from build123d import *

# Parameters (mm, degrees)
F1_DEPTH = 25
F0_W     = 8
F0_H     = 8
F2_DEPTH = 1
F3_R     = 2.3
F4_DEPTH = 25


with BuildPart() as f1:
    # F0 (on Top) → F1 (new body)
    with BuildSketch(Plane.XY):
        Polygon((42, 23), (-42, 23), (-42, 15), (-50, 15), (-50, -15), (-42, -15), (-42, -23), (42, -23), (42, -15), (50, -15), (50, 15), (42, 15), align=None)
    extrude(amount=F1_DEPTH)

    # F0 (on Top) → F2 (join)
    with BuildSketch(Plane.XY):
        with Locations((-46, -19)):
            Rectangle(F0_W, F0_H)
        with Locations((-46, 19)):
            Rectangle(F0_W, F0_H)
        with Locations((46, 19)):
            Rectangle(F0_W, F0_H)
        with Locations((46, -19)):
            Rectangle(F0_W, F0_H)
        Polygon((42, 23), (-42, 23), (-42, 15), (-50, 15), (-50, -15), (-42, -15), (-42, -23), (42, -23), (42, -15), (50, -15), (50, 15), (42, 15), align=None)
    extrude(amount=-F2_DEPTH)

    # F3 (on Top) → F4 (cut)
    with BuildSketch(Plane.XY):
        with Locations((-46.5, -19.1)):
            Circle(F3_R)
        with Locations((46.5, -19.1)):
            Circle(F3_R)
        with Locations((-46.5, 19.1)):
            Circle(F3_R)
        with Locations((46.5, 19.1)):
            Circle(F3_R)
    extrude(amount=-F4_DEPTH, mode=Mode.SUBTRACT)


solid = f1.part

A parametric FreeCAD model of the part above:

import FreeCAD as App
import Part
import Sketcher
from FreeCAD import Vector

doc = App.newDocument("Part")
body = doc.addObject("PartDesign::Body", "Body")

# Sketch on XY plane
sketch1 = doc.addObject("Sketcher::SketchObject", "Sketch")
body.addObject(sketch1)
sketch1.AttachmentSupport = (doc.XY_Plane, [""])
sketch1.MapMode = "FlatFace"
sketch1.addGeometry(Part.LineSegment(Vector(42, 23, 0), Vector(-42, 23, 0)), False)
sketch1.addGeometry(Part.LineSegment(Vector(-42, 23, 0), Vector(-42, 15, 0)), False)
sketch1.addGeometry(Part.LineSegment(Vector(-42, 15, 0), Vector(-50, 15, 0)), False)
sketch1.addGeometry(Part.LineSegment(Vector(-50, 15, 0), Vector(-50, -15, 0)), False)
sketch1.addGeometry(Part.LineSegment(Vector(-50, -15, 0), Vector(-42, -15, 0)), False)
sketch1.addGeometry(Part.LineSegment(Vector(-42, -15, 0), Vector(-42, -23, 0)), False)
sketch1.addGeometry(Part.LineSegment(Vector(-42, -23, 0), Vector(42, -23, 0)), False)
sketch1.addGeometry(Part.LineSegment(Vector(42, -23, 0), Vector(42, -15, 0)), False)
sketch1.addGeometry(Part.LineSegment(Vector(42, -15, 0), Vector(50, -15, 0)), False)
sketch1.addGeometry(Part.LineSegment(Vector(50, -15, 0), Vector(50, 15, 0)), False)
sketch1.addGeometry(Part.LineSegment(Vector(50, 15, 0), Vector(42, 15, 0)), False)
sketch1.addGeometry(Part.LineSegment(Vector(42, 15, 0), Vector(42, 23, 0)), False)
sketch1.addConstraint(Sketcher.Constraint("Coincident", 0, 2, 1, 1))
sketch1.addConstraint(Sketcher.Constraint("Coincident", 1, 2, 2, 1))
sketch1.addConstraint(Sketcher.Constraint("Coincident", 2, 2, 3, 1))
sketch1.addConstraint(Sketcher.Constraint("Coincident", 3, 2, 4, 1))
sketch1.addConstraint(Sketcher.Constraint("Coincident", 4, 2, 5, 1))
sketch1.addConstraint(Sketcher.Constraint("Coincident", 5, 2, 6, 1))
sketch1.addConstraint(Sketcher.Constraint("Coincident", 6, 2, 7, 1))
sketch1.addConstraint(Sketcher.Constraint("Coincident", 7, 2, 8, 1))
sketch1.addConstraint(Sketcher.Constraint("Coincident", 8, 2, 9, 1))
sketch1.addConstraint(Sketcher.Constraint("Coincident", 9, 2, 10, 1))
sketch1.addConstraint(Sketcher.Constraint("Coincident", 10, 2, 11, 1))
sketch1.addConstraint(Sketcher.Constraint("Coincident", 11, 2, 0, 1))
sketch1.addConstraint(Sketcher.Constraint("Horizontal", 0))
sketch1.addConstraint(Sketcher.Constraint("Vertical", 1))
sketch1.addConstraint(Sketcher.Constraint("Horizontal", 2))
sketch1.addConstraint(Sketcher.Constraint("Vertical", 3))
sketch1.addConstraint(Sketcher.Constraint("Horizontal", 4))
sketch1.addConstraint(Sketcher.Constraint("Vertical", 5))
sketch1.addConstraint(Sketcher.Constraint("Horizontal", 6))
sketch1.addConstraint(Sketcher.Constraint("Vertical", 7))
sketch1.addConstraint(Sketcher.Constraint("Horizontal", 8))
sketch1.addConstraint(Sketcher.Constraint("Vertical", 9))
sketch1.addConstraint(Sketcher.Constraint("Horizontal", 10))
sketch1.addConstraint(Sketcher.Constraint("Vertical", 11))
sketch1.addConstraint(Sketcher.Constraint("Symmetric", 0, 2, 6, 2, -1, 1))
sketch1.addConstraint(Sketcher.Constraint("Symmetric", 2, 2, 8, 2, -1, 1))
sketch1.addConstraint(Sketcher.Constraint("Symmetric", 4, 2, 10, 2, -1, 1))
sketch1.addConstraint(Sketcher.Constraint("Symmetric", 4, 2, 7, 2, -2))
sketch1.addConstraint(Sketcher.Constraint("Equal", 10, 1))
sketch1.addConstraint(Sketcher.Constraint("DistanceX", 0, 2, 0, 1, 84.0))
sketch1.addConstraint(Sketcher.Constraint("DistanceX", 2, 2, 2, 1, 8.0))
sketch1.addConstraint(Sketcher.Constraint("DistanceY", 3, 2, 3, 1, 30.0))
pad1 = doc.addObject("PartDesign::Pad", "Pad")
body.addObject(pad1)
pad1.Profile = sketch1
pad1.Length = 25

# Sketch on XY plane
sketch2 = doc.addObject("Sketcher::SketchObject", "Sketch001")
body.addObject(sketch2)
sketch2.AttachmentSupport = (doc.XY_Plane, [""])
sketch2.MapMode = "FlatFace"
sketch2.addGeometry(Part.LineSegment(Vector(-50, -23, 0), Vector(50, -23, 0)), False)
sketch2.addGeometry(Part.LineSegment(Vector(50, -23, 0), Vector(50, 23, 0)), False)
sketch2.addGeometry(Part.LineSegment(Vector(50, 23, 0), Vector(-50, 23, 0)), False)
sketch2.addGeometry(Part.LineSegment(Vector(-50, 23, 0), Vector(-50, -23, 0)), False)
sketch2.addConstraint(Sketcher.Constraint("Coincident", 0, 2, 1, 1))
sketch2.addConstraint(Sketcher.Constraint("Coincident", 1, 2, 2, 1))
sketch2.addConstraint(Sketcher.Constraint("Coincident", 2, 2, 3, 1))
sketch2.addConstraint(Sketcher.Constraint("Coincident", 3, 2, 0, 1))
sketch2.addConstraint(Sketcher.Constraint("Horizontal", 0))
sketch2.addConstraint(Sketcher.Constraint("Vertical", 1))
sketch2.addConstraint(Sketcher.Constraint("Horizontal", 2))
sketch2.addConstraint(Sketcher.Constraint("Vertical", 3))
sketch2.addConstraint(Sketcher.Constraint("Symmetric", 0, 2, 2, 2, -1, 1))
sketch2.addConstraint(Sketcher.Constraint("DistanceX", 0, 1, 0, 2, 100.0))
sketch2.addConstraint(Sketcher.Constraint("DistanceY", 1, 1, 1, 2, 46.0))
pad2 = doc.addObject("PartDesign::Pad", "Pad001")
body.addObject(pad2)
pad2.Profile = sketch2
pad2.Length = 1
pad2.Reversed = True

# Sketch on XY plane
sketch3 = doc.addObject("Sketcher::SketchObject", "Sketch002")
body.addObject(sketch3)
sketch3.AttachmentSupport = (doc.XY_Plane, [""])
sketch3.MapMode = "FlatFace"
sketch3.addGeometry(Part.Circle(Vector(-46.5, -19.1, 0), Vector(0, 0, 1), 2.3), False)
sketch3.addGeometry(Part.Circle(Vector(46.5, -19.1, 0), Vector(0, 0, 1), 2.3), False)
sketch3.addGeometry(Part.Circle(Vector(-46.5, 19.1, 0), Vector(0, 0, 1), 2.3), False)
sketch3.addGeometry(Part.Circle(Vector(46.5, 19.1, 0), Vector(0, 0, 1), 2.3), False)
sketch3.addConstraint(Sketcher.Constraint("Equal", 0, 1))
sketch3.addConstraint(Sketcher.Constraint("Equal", 1, 2))
sketch3.addConstraint(Sketcher.Constraint("Equal", 2, 3))
sketch3.addConstraint(Sketcher.Constraint("Symmetric", 1, 3, 2, 3, -1, 1))
sketch3.addConstraint(Sketcher.Constraint("Symmetric", 0, 3, 3, 3, -1, 1))
sketch3.addConstraint(Sketcher.Constraint("Symmetric", 0, 3, 1, 3, -2))
sketch3.addConstraint(Sketcher.Constraint("Diameter", 0, 4.6))
sketch3.addConstraint(Sketcher.Constraint("DistanceX", 0, 3, 1, 3, 93.0))
sketch3.addConstraint(Sketcher.Constraint("DistanceY", 0, 3, -1, 1, 19.1))
pocket1 = doc.addObject("PartDesign::Pocket", "Pocket")
body.addObject(pocket1)
pocket1.Profile = sketch3
pocket1.Length = 25

doc.recompute()
